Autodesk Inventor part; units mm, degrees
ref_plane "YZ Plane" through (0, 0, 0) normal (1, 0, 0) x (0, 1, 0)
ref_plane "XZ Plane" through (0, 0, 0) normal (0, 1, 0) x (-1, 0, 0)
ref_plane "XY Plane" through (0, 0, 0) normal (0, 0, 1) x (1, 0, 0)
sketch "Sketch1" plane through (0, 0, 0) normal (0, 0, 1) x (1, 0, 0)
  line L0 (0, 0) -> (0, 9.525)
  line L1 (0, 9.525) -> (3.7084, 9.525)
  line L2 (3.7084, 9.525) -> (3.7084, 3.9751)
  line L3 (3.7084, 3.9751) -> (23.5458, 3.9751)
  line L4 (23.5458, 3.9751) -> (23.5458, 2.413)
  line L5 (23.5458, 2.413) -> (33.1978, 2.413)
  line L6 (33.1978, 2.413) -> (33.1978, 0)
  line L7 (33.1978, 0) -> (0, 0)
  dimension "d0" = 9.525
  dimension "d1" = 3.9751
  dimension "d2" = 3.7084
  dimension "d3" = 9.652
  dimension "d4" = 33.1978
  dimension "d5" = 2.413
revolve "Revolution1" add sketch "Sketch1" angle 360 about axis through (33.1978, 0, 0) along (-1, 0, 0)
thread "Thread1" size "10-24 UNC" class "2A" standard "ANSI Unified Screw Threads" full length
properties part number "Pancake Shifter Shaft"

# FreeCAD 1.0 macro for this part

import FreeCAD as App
import Part
import Sketcher
from FreeCAD import Vector
Q = App.Units.Quantity


def add_polygon(sketch, points):
    """Adds a closed chain of lines whose ends are joined by coincident constraints."""
    first, n = sketch.GeometryCount, len(points)
    for a, b in zip(points, points[1:] + points[:1]):
        sketch.addGeometry(Part.LineSegment(App.Vector(*a, 0), App.Vector(*b, 0)), False)
    for i in range(n):
        sketch.addConstraint(Sketcher.Constraint("Coincident", first + i, 2, first + (i + 1) % n, 1))

doc = App.newDocument("Part")
body = doc.addObject("PartDesign::Body", "Body")

# Sketch on XY plane
sketch1 = body.newObject("Sketcher::SketchObject", "Sketch")
sketch1.AttachmentSupport = (doc.getObject("XY_Plane"), [""])
sketch1.MapMode = "FlatFace"
add_polygon(sketch1, [(0, 9.5), (0, 0), (33.2, 0), (33.2, 2.4), (23.5, 2.4), (23.5, 4), (3.7, 4), (3.7, 9.5)])  # lines 0-7
sketch1.addConstraint(Sketcher.Constraint("Vertical", 0))
sketch1.addConstraint(Sketcher.Constraint("Horizontal", 1))
sketch1.addConstraint(Sketcher.Constraint("Vertical", 2))
sketch1.addConstraint(Sketcher.Constraint("Horizontal", 3))
sketch1.addConstraint(Sketcher.Constraint("Vertical", 4))
sketch1.addConstraint(Sketcher.Constraint("Horizontal", 5))
sketch1.addConstraint(Sketcher.Constraint("Vertical", 6))
sketch1.addConstraint(Sketcher.Constraint("Horizontal", 7))
sketch1.addConstraint(Sketcher.Constraint("Coincident", 0, 2, -1, 1))
sketch1.addConstraint(Sketcher.Constraint("DistanceX", 3, 2, 3, 1, Q("0.38 in")))
sketch1.addConstraint(Sketcher.Constraint("DistanceX", 1, 1, 1, 2, Q("1.307 in")))
sketch1.addConstraint(Sketcher.Constraint("DistanceX", 7, 2, 7, 1, Q("0.146 in")))
sketch1.addConstraint(Sketcher.Constraint("DistanceY", 0, 2, 0, 1, Q("0.375 in")))
sketch1.addConstraint(Sketcher.Constraint("DistanceY", 2, 1, 2, 2, Q("0.095 in")))
sketch1.addConstraint(Sketcher.Constraint("DistanceY", -1, 1, 4, 2, Q("0.1565 in")))
revolution = body.newObject("PartDesign::Revolution", "Revolution")
revolution.Profile = sketch1
revolution.ReferenceAxis = (sketch1, ["H_Axis"])
revolution.Angle = 360

doc.recompute()
